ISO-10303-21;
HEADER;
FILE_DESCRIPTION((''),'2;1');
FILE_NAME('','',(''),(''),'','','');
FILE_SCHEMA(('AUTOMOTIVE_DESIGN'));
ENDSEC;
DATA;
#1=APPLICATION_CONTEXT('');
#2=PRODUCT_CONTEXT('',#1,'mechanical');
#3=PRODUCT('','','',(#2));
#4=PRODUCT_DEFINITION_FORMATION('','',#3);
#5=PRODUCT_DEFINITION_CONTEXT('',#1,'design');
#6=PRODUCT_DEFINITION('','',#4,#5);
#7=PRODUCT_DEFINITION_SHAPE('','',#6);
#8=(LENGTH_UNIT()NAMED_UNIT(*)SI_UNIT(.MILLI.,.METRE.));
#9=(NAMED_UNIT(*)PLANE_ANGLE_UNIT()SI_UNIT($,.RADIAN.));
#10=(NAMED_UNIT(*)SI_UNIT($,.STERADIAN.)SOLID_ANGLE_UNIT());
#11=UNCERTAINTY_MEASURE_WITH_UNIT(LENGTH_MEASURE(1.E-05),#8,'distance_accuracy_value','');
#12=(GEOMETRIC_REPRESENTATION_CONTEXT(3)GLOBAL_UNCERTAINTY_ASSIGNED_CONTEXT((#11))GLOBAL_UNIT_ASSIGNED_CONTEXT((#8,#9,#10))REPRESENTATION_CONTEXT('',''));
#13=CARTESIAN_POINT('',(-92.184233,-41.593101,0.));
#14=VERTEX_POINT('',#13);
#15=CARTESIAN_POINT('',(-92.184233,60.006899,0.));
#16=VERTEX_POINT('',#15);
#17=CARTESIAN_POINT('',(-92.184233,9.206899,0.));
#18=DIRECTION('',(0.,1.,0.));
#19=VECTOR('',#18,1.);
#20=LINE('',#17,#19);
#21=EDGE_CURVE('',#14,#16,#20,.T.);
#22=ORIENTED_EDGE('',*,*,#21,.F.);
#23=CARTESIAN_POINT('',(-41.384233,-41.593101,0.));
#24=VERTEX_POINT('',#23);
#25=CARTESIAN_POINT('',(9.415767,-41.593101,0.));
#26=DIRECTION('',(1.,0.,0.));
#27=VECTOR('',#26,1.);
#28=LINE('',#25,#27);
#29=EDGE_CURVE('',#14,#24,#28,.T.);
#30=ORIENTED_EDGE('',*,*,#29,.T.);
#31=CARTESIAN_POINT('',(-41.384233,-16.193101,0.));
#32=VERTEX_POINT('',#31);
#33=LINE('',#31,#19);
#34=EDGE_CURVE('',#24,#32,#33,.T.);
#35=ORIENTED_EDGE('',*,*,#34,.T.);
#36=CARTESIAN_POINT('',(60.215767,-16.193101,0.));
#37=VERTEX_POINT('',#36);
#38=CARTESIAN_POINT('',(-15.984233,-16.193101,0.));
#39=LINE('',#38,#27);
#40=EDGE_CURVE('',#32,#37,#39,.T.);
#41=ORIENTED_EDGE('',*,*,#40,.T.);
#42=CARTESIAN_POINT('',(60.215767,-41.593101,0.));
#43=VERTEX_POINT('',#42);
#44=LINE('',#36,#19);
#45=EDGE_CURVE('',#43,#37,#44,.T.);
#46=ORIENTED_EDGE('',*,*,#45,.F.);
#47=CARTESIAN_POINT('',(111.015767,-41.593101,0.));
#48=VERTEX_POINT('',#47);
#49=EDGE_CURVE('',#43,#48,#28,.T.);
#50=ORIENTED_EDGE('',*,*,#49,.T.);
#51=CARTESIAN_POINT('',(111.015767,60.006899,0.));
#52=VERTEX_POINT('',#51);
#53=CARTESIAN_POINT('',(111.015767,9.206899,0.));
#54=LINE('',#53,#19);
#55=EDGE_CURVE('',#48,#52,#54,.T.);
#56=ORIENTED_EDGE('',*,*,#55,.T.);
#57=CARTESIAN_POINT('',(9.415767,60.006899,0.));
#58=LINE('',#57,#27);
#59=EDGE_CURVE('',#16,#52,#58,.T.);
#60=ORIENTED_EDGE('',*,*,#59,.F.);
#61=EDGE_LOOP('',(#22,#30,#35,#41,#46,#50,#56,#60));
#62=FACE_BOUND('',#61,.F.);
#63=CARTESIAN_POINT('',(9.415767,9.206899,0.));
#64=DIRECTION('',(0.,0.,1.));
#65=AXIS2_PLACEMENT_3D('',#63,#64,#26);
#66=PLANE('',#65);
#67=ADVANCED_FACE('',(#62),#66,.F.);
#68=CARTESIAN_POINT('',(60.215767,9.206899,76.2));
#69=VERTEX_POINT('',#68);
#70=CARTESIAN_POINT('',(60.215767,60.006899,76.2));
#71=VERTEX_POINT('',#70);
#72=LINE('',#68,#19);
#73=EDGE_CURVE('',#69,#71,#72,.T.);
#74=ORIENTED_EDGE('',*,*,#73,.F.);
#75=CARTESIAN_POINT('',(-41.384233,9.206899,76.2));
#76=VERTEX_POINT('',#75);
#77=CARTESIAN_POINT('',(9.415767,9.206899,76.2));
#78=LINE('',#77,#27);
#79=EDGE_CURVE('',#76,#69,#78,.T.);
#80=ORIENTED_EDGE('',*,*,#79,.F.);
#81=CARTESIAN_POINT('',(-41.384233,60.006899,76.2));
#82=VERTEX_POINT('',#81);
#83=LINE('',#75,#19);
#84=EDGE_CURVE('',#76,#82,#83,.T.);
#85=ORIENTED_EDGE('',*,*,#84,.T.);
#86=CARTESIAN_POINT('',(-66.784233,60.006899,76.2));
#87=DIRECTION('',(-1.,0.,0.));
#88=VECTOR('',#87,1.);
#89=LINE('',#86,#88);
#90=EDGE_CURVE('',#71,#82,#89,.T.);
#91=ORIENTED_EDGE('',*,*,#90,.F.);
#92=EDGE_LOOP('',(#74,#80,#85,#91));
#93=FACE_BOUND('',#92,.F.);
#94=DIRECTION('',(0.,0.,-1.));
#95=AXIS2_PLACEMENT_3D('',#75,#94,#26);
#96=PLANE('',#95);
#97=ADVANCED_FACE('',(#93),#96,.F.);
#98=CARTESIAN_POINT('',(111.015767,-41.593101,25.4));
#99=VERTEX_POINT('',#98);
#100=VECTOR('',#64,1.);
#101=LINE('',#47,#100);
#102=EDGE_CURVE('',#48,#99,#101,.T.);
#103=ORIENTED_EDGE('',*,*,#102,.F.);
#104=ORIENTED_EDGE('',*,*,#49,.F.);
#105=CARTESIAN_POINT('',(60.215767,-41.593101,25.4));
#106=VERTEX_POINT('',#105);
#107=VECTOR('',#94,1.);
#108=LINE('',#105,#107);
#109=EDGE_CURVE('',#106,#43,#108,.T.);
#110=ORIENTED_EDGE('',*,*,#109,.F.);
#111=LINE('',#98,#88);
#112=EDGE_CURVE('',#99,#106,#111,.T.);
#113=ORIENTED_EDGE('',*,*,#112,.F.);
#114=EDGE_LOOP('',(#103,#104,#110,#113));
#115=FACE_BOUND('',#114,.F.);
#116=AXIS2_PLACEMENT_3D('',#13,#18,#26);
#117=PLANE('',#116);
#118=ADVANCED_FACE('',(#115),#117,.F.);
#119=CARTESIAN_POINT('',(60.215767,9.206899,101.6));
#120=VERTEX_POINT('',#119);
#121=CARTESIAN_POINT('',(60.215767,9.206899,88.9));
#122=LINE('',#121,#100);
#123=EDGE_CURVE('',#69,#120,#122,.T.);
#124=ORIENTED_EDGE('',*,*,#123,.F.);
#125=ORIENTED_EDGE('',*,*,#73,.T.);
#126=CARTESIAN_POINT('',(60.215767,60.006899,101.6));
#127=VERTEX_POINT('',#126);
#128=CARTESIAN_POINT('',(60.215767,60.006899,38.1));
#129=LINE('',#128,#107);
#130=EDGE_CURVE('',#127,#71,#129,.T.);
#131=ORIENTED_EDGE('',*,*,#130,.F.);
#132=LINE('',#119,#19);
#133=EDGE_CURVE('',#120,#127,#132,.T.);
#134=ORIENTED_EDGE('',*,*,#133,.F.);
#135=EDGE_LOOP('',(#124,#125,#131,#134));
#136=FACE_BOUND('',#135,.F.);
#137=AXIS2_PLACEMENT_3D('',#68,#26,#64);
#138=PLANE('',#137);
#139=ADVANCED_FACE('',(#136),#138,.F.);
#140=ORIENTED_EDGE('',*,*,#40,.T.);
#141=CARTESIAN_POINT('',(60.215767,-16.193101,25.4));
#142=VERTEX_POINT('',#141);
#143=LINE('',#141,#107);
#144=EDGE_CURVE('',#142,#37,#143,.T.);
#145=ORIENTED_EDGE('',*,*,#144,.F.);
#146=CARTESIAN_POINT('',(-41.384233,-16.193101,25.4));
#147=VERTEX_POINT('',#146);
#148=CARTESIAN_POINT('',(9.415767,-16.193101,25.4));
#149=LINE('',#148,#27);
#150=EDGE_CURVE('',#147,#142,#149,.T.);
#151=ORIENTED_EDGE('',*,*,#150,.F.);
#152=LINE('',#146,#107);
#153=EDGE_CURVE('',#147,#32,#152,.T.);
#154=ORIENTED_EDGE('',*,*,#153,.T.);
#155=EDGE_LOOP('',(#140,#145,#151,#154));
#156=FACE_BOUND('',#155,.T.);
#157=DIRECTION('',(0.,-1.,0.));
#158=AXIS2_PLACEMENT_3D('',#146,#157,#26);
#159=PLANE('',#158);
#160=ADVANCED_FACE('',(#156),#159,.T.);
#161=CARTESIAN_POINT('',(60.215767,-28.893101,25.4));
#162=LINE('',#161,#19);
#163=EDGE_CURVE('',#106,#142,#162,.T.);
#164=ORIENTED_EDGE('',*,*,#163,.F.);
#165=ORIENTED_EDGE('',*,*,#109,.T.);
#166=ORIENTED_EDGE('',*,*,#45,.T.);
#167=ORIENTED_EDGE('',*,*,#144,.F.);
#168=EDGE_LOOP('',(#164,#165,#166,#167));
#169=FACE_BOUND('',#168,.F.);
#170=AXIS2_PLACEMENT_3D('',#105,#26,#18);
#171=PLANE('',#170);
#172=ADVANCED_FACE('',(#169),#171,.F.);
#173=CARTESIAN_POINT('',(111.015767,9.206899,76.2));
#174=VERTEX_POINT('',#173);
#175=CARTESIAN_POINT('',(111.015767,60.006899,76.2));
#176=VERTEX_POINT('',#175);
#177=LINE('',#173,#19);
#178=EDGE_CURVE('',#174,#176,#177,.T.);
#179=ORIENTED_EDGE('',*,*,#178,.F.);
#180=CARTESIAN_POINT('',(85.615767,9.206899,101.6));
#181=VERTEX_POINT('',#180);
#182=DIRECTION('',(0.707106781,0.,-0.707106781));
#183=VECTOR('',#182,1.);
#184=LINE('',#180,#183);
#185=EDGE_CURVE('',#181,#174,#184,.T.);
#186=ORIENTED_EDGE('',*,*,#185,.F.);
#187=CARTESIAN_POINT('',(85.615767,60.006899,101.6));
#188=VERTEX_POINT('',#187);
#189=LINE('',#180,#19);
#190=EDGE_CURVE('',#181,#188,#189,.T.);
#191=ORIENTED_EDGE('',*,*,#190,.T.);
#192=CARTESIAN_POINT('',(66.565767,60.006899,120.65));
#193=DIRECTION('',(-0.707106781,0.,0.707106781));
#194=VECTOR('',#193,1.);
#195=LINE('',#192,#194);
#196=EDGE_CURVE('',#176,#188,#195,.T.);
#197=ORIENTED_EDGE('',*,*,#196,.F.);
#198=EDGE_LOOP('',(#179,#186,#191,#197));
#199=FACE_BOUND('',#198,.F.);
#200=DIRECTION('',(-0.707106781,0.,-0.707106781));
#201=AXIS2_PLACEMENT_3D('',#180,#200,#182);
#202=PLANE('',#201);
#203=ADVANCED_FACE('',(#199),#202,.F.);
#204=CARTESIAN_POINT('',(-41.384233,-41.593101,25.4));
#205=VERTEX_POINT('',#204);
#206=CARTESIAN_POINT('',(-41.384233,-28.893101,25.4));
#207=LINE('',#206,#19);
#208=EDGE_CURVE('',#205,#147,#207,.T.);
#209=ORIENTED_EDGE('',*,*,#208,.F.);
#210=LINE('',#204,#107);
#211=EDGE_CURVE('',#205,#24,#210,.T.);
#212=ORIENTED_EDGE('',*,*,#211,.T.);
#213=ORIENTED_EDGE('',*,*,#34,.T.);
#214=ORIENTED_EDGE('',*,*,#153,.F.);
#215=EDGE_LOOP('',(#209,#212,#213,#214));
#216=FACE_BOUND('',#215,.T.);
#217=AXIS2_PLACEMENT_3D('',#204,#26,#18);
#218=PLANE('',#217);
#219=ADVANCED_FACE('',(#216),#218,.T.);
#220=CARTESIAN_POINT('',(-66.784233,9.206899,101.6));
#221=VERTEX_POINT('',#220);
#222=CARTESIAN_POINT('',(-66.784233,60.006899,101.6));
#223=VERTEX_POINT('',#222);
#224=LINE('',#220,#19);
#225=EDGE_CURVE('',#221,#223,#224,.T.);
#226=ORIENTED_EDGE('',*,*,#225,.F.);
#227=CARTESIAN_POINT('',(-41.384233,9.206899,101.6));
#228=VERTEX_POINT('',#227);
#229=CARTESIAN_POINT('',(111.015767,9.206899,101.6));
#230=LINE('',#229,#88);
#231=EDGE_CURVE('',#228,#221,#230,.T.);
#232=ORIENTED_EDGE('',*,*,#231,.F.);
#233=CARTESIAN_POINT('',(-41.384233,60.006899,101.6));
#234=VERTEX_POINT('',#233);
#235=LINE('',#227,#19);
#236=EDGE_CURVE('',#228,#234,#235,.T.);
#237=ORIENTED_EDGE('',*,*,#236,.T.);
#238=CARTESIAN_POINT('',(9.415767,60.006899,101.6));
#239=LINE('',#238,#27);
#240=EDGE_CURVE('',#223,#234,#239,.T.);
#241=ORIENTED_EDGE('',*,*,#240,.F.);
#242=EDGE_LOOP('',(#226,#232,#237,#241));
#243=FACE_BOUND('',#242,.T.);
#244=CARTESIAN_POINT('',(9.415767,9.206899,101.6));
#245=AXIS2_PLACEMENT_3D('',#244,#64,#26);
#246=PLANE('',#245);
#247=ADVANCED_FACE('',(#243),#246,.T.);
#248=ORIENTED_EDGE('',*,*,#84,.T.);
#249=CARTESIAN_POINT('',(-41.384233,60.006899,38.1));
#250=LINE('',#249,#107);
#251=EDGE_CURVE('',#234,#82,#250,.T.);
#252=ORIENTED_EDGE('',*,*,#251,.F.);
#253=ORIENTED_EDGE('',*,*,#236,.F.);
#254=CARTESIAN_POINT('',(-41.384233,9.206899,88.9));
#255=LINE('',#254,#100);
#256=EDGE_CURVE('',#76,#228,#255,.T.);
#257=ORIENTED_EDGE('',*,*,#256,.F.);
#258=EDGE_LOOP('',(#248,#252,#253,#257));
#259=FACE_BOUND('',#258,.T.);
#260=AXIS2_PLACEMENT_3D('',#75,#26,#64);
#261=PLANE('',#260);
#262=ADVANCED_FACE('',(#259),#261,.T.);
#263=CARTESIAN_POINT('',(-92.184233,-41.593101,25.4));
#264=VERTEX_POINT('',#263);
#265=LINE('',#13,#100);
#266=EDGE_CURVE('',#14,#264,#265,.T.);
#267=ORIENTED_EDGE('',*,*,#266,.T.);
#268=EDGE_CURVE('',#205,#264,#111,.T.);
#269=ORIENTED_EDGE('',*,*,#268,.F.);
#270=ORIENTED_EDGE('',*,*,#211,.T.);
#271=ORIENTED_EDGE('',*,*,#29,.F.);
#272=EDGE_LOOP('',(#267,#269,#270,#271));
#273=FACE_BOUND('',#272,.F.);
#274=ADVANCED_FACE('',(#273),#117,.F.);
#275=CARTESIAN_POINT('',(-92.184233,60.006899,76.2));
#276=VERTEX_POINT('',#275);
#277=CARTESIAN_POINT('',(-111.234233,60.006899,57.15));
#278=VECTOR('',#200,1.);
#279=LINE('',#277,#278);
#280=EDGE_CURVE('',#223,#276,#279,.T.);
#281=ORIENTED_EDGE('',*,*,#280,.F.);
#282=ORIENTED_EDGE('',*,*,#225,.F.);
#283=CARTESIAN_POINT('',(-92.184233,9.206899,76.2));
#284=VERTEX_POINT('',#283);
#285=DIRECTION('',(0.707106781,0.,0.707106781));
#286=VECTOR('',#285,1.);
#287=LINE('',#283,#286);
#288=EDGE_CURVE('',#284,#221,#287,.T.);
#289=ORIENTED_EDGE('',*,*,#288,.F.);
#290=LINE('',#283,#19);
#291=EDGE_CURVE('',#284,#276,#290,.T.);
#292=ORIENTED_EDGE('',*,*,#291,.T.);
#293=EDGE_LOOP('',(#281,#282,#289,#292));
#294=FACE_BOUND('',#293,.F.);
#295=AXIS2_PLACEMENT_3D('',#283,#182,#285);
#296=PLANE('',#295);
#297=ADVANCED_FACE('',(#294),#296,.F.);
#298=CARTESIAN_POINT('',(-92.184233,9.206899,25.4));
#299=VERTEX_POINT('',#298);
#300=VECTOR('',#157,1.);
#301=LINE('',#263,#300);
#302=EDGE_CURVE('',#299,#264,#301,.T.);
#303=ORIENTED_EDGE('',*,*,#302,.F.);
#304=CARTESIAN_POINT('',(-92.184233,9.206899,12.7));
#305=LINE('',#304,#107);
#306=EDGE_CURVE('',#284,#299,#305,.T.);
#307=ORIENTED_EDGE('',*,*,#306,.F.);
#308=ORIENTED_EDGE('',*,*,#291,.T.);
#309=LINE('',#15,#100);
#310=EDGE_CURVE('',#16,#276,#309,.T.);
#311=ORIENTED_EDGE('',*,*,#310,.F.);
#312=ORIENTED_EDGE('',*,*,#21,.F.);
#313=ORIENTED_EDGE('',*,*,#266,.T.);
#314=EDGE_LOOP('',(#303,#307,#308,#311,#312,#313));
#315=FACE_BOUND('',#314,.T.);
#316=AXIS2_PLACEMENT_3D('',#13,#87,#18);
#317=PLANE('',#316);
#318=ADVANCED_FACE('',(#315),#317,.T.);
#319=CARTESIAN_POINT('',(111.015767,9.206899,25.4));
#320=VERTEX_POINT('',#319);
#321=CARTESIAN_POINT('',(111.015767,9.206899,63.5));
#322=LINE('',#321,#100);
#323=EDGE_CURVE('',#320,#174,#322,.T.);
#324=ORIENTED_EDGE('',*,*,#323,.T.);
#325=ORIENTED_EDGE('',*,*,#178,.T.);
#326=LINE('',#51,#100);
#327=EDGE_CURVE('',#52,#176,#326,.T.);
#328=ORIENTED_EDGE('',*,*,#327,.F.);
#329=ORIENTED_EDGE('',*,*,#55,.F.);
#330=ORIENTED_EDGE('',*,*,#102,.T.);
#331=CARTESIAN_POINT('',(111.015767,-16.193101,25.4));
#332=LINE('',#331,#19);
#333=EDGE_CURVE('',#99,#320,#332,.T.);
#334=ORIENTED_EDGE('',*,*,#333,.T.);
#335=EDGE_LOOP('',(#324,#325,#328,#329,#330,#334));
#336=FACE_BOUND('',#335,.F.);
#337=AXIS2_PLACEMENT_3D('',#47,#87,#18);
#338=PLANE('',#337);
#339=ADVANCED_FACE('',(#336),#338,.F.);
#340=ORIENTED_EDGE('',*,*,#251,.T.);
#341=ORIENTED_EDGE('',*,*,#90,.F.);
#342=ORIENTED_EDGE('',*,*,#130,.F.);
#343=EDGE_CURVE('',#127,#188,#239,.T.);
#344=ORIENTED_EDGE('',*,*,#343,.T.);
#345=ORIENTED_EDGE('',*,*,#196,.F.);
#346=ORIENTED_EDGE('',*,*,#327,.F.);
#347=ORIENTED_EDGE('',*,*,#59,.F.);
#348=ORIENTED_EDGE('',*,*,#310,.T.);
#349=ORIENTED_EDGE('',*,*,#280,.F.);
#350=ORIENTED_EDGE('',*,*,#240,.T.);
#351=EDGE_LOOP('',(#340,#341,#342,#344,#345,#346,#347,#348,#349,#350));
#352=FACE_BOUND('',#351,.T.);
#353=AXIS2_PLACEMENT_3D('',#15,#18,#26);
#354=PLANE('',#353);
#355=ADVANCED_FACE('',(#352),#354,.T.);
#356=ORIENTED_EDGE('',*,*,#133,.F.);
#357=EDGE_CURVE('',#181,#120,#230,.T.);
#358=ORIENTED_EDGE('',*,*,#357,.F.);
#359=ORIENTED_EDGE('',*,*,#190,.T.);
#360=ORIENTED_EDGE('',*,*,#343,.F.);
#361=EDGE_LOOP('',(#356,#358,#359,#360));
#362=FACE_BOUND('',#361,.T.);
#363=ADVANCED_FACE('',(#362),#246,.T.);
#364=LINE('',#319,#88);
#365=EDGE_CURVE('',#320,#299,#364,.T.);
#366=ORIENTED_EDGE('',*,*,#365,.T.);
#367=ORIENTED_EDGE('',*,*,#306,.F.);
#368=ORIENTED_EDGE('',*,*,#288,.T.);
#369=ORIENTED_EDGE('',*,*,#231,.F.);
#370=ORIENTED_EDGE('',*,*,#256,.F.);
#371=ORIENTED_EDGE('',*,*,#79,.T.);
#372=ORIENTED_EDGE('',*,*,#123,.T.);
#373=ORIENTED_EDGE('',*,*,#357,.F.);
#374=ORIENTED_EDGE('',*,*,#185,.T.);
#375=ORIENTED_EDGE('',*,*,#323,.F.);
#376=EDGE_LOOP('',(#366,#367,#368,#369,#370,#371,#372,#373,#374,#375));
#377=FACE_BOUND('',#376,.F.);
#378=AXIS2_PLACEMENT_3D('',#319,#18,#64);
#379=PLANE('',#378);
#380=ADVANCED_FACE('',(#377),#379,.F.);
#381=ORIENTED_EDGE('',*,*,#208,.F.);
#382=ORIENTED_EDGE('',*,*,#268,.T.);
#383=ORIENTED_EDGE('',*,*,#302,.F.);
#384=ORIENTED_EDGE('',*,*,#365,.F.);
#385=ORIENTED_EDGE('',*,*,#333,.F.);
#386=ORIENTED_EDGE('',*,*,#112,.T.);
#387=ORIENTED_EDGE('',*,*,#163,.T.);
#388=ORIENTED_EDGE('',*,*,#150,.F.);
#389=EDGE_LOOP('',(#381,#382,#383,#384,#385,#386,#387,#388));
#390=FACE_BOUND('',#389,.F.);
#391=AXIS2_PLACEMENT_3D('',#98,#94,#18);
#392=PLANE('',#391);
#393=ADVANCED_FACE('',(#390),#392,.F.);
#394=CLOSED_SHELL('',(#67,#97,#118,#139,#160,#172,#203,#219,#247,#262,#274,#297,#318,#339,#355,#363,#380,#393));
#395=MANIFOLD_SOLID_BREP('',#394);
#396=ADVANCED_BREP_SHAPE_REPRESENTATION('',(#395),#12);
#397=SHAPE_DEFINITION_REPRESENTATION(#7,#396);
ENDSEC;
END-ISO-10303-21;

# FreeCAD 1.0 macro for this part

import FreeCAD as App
import Part
import Sketcher
from FreeCAD import Vector
Q = App.Units.Quantity


def add_polygon(sketch, points):
    """Adds a closed chain of lines whose ends are joined by coincident constraints."""
    first, n = sketch.GeometryCount, len(points)
    for a, b in zip(points, points[1:] + points[:1]):
        sketch.addGeometry(Part.LineSegment(App.Vector(*a, 0), App.Vector(*b, 0)), False)
    for i in range(n):
        sketch.addConstraint(Sketcher.Constraint("Coincident", first + i, 2, first + (i + 1) % n, 1))

doc = App.newDocument("Part")
body = doc.addObject("PartDesign::Body", "Body")

# Sketch on XY plane
sketch1 = doc.addObject("Sketcher::SketchObject", "Sketch")
body.addObject(sketch1)
sketch1.AttachmentSupport = (doc.XY_Plane, [""])
sketch1.MapMode = "FlatFace"
add_polygon(sketch1, [(-92.184233, 60.006899), (-92.184233, -41.593101), (111.015767, -41.593101), (111.015767, 60.006899)])  # lines 0-3
sketch1.addConstraint([
    Sketcher.Constraint("Vertical", 0),
    Sketcher.Constraint("Horizontal", 1),
    Sketcher.Constraint("Vertical", 2),
    Sketcher.Constraint("Horizontal", 3),
    Sketcher.Constraint("DistanceX", 1, 1, 1, 2, Q("8 in")),
    Sketcher.Constraint("DistanceY", 0, 2, 0, 1, Q("4 in")),
    Sketcher.Constraint("DistanceY", 0, 2, -1, 1, 41.593101),
    Sketcher.Constraint("DistanceX", 0, 2, -1, 1, 92.184233),
])
pad1 = doc.addObject("PartDesign::Pad", "Pad")
body.addObject(pad1)
pad1.Profile = sketch1
pad1.Length = Q("4 in")

# Sketch on YZ plane
sketch2 = doc.addObject("Sketcher::SketchObject", "Sketch001")
body.addObject(sketch2)
sketch2.AttachmentSupport = (doc.YZ_Plane, [""])
sketch2.MapMode = "FlatFace"
sketch2.AttachmentOffset = App.Placement(Vector(0, 0, 111.015767), App.Rotation())
add_polygon(sketch2, [(-41.593101, 101.6), (-41.593101, 25.4), (9.206899, 25.4), (9.206899, 101.6)])  # lines 0-3
sketch2.addConstraint([
    Sketcher.Constraint("Vertical", 0),
    Sketcher.Constraint("Horizontal", 1),
    Sketcher.Constraint("Vertical", 2),
    Sketcher.Constraint("Horizontal", 3),
    Sketcher.Constraint("DistanceX", 1, 1, 1, 2, Q("2 in")),
    Sketcher.Constraint("DistanceY", 0, 2, 0, 1, Q("3 in")),
    Sketcher.Constraint("DistanceY", -1, 1, 0, 2, Q("1 in")),
    Sketcher.Constraint("DistanceX", 0, 2, -1, 1, 41.593101),
])
pocket1 = doc.addObject("PartDesign::Pocket", "Pocket")
body.addObject(pocket1)
pocket1.Profile = sketch2
pocket1.Type = "ThroughAll"

# Sketch on XY plane
sketch3 = doc.addObject("Sketcher::SketchObject", "Sketch002")
body.addObject(sketch3)
sketch3.AttachmentSupport = (doc.XY_Plane, [""])
sketch3.MapMode = "FlatFace"
sketch3.AttachmentOffset = App.Placement(Vector(0, 0, 1 * 25.4), App.Rotation())
add_polygon(sketch3, [(-41.384233, -16.193101), (-41.384233, -41.593101), (60.215767, -41.593101), (60.215767, -16.193101)])  # lines 0-3
sketch3.addConstraint([
    Sketcher.Constraint("Vertical", 0),
    Sketcher.Constraint("Horizontal", 1),
    Sketcher.Constraint("Vertical", 2),
    Sketcher.Constraint("Horizontal", 3),
    Sketcher.Constraint("DistanceX", 1, 1, 1, 2, Q("4 in")),
    Sketcher.Constraint("DistanceY", 0, 2, 0, 1, Q("1 in")),
    Sketcher.Constraint("DistanceY", 0, 2, -1, 1, 41.593101),
    Sketcher.Constraint("DistanceX", 0, 2, -1, 1, 41.384233),
])
pocket2 = doc.addObject("PartDesign::Pocket", "Pocket001")
body.addObject(pocket2)
pocket2.Profile = sketch3
pocket2.Type = "ThroughAll"

# Sketch on XZ plane
sketch4 = doc.addObject("Sketcher::SketchObject", "Sketch003")
body.addObject(sketch4)
sketch4.AttachmentSupport = (doc.XZ_Plane, [""])
sketch4.MapMode = "FlatFace"
sketch4.AttachmentOffset = App.Placement(Vector(0, 0, -9.206899), App.Rotation())
add_polygon(sketch4, [(-41.384233, 101.6), (-41.384233, 76.2), (60.215767, 76.2), (60.215767, 101.6)])  # lines 0-3
sketch4.addConstraint([
    Sketcher.Constraint("Vertical", 0),
    Sketcher.Constraint("Horizontal", 1),
    Sketcher.Constraint("Vertical", 2),
    Sketcher.Constraint("Horizontal", 3),
    Sketcher.Constraint("DistanceX", 1, 1, 1, 2, Q("4 in")),
    Sketcher.Constraint("DistanceY", 0, 2, 0, 1, Q("1 in")),
    Sketcher.Constraint("DistanceY", -1, 1, 0, 2, Q("3 in")),
    Sketcher.Constraint("DistanceX", 0, 2, -1, 1, 41.384233),
])
pocket3 = doc.addObject("PartDesign::Pocket", "Pocket002")
body.addObject(pocket3)
pocket3.Profile = sketch4
pocket3.Type = "ThroughAll"

# Sketch on XZ plane
sketch5 = doc.addObject("Sketcher::SketchObject", "Sketch004")
body.addObject(sketch5)
sketch5.AttachmentSupport = (doc.XZ_Plane, [""])
sketch5.MapMode = "FlatFace"
sketch5.AttachmentOffset = App.Placement(Vector(0, 0, -9.206899), App.Rotation())
add_polygon(sketch5, [(-92.184233, 101.6), (-92.184233, 76.2), (-66.784233, 101.6)])  # lines 0-2
add_polygon(sketch5, [(111.015767, 101.6), (85.615767, 101.6), (111.015767, 76.2)])  # lines 3-5
sketch5.addConstraint([
    Sketcher.Constraint("Vertical", 0),
    Sketcher.Constraint("Horizontal", 2),
    Sketcher.Constraint("Horizontal", 3),
    Sketcher.Constraint("Vertical", 5),
    Sketcher.Constraint("Perpendicular", 1, 4),
    Sketcher.Constraint("Horizontal", 2, 2, 3, 2),
    Sketcher.Constraint("Horizontal", 0, 2, 4, 2),
    Sketcher.Constraint("Equal", 2, 3),
    Sketcher.Constraint("DistanceX", 2, 2, 2, 1, Q("1 in")),
    Sketcher.Constraint("DistanceY", -1, 1, 0, 2, Q("3 in")),
    Sketcher.Constraint("DistanceX", 1, 2, 3, 2, Q("6 in")),
    Sketcher.Constraint("DistanceX", 0, 2, -1, 1, 92.184233),
])
pocket4 = doc.addObject("PartDesign::Pocket", "Pocket003")
body.addObject(pocket4)
pocket4.Profile = sketch5
pocket4.Type = "ThroughAll"

doc.recompute()
